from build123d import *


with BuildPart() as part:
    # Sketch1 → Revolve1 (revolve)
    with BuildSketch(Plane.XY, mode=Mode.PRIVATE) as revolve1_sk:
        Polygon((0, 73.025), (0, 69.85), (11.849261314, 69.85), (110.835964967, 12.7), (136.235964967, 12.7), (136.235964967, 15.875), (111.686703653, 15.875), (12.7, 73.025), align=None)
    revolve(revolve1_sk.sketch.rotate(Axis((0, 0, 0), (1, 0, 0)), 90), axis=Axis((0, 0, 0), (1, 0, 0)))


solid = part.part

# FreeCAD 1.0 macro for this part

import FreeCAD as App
import Part
import Sketcher
Q = App.Units.Quantity


def add_polygon(sketch, points):
    """Adds a closed chain of lines whose ends are joined by coincident constraints."""
    first, n = sketch.GeometryCount, len(points)
    for a, b in zip(points, points[1:] + points[:1]):
        sketch.addGeometry(Part.LineSegment(App.Vector(*a, 0), App.Vector(*b, 0)), False)
    for i in range(n):
        sketch.addConstraint(Sketcher.Constraint("Coincident", first + i, 2, first + (i + 1) % n, 1))

doc = App.newDocument("Part")
body = doc.addObject("PartDesign::Body", "Body")

sketch1 = body.newObject("Sketcher::SketchObject", "Sketch")
sketch1.AttachmentSupport = (doc.getObject("XY_Plane"), [""])
sketch1.MapMode = "FlatFace"
add_polygon(sketch1, [(0, 73.025), (0, 69.85), (11.849261, 69.85), (110.835965, 12.7), (136.235965, 12.7), (136.235965, 15.875), (111.686704, 15.875), (12.7, 73.025)])
sketch1.addConstraint([
    Sketcher.Constraint("Vertical", 0),
    Sketcher.Constraint("Horizontal", 1),
    Sketcher.Constraint("Horizontal", 3),
    Sketcher.Constraint("Vertical", 4),
    Sketcher.Constraint("Horizontal", 5),
    Sketcher.Constraint("Horizontal", 7),
    Sketcher.Constraint("PointOnObject", 0, 2, -2),
    Sketcher.Constraint("Parallel", 2, 6),
    Sketcher.Constraint("Equal", 0, 4),
    Sketcher.Constraint("DistanceX", 3, 1, 3, 2, Q("1 in")),
    Sketcher.Constraint("DistanceX", 7, 2, 7, 1, Q("0.5 in")),
    Sketcher.Constraint("Angle", 2, Q("-30 deg")),
    Sketcher.Constraint("Distance", 2, Q("4.5 in")),
    Sketcher.Constraint("DistanceY", -1, 1, 2, 2, Q("0.5 in")),
    Sketcher.Constraint("DistanceY", 0, 2, 0, 1, Q("0.125 in")),
    Sketcher.Constraint("DistanceX", 1, 1, 1, 2, Q("11.849261 mm")),
])
revolution = body.newObject("PartDesign::Revolution", "Revolution")
revolution.Profile = sketch1
revolution.ReferenceAxis = (sketch1, ["H_Axis"])
revolution.Angle = 360

doc.recompute()
